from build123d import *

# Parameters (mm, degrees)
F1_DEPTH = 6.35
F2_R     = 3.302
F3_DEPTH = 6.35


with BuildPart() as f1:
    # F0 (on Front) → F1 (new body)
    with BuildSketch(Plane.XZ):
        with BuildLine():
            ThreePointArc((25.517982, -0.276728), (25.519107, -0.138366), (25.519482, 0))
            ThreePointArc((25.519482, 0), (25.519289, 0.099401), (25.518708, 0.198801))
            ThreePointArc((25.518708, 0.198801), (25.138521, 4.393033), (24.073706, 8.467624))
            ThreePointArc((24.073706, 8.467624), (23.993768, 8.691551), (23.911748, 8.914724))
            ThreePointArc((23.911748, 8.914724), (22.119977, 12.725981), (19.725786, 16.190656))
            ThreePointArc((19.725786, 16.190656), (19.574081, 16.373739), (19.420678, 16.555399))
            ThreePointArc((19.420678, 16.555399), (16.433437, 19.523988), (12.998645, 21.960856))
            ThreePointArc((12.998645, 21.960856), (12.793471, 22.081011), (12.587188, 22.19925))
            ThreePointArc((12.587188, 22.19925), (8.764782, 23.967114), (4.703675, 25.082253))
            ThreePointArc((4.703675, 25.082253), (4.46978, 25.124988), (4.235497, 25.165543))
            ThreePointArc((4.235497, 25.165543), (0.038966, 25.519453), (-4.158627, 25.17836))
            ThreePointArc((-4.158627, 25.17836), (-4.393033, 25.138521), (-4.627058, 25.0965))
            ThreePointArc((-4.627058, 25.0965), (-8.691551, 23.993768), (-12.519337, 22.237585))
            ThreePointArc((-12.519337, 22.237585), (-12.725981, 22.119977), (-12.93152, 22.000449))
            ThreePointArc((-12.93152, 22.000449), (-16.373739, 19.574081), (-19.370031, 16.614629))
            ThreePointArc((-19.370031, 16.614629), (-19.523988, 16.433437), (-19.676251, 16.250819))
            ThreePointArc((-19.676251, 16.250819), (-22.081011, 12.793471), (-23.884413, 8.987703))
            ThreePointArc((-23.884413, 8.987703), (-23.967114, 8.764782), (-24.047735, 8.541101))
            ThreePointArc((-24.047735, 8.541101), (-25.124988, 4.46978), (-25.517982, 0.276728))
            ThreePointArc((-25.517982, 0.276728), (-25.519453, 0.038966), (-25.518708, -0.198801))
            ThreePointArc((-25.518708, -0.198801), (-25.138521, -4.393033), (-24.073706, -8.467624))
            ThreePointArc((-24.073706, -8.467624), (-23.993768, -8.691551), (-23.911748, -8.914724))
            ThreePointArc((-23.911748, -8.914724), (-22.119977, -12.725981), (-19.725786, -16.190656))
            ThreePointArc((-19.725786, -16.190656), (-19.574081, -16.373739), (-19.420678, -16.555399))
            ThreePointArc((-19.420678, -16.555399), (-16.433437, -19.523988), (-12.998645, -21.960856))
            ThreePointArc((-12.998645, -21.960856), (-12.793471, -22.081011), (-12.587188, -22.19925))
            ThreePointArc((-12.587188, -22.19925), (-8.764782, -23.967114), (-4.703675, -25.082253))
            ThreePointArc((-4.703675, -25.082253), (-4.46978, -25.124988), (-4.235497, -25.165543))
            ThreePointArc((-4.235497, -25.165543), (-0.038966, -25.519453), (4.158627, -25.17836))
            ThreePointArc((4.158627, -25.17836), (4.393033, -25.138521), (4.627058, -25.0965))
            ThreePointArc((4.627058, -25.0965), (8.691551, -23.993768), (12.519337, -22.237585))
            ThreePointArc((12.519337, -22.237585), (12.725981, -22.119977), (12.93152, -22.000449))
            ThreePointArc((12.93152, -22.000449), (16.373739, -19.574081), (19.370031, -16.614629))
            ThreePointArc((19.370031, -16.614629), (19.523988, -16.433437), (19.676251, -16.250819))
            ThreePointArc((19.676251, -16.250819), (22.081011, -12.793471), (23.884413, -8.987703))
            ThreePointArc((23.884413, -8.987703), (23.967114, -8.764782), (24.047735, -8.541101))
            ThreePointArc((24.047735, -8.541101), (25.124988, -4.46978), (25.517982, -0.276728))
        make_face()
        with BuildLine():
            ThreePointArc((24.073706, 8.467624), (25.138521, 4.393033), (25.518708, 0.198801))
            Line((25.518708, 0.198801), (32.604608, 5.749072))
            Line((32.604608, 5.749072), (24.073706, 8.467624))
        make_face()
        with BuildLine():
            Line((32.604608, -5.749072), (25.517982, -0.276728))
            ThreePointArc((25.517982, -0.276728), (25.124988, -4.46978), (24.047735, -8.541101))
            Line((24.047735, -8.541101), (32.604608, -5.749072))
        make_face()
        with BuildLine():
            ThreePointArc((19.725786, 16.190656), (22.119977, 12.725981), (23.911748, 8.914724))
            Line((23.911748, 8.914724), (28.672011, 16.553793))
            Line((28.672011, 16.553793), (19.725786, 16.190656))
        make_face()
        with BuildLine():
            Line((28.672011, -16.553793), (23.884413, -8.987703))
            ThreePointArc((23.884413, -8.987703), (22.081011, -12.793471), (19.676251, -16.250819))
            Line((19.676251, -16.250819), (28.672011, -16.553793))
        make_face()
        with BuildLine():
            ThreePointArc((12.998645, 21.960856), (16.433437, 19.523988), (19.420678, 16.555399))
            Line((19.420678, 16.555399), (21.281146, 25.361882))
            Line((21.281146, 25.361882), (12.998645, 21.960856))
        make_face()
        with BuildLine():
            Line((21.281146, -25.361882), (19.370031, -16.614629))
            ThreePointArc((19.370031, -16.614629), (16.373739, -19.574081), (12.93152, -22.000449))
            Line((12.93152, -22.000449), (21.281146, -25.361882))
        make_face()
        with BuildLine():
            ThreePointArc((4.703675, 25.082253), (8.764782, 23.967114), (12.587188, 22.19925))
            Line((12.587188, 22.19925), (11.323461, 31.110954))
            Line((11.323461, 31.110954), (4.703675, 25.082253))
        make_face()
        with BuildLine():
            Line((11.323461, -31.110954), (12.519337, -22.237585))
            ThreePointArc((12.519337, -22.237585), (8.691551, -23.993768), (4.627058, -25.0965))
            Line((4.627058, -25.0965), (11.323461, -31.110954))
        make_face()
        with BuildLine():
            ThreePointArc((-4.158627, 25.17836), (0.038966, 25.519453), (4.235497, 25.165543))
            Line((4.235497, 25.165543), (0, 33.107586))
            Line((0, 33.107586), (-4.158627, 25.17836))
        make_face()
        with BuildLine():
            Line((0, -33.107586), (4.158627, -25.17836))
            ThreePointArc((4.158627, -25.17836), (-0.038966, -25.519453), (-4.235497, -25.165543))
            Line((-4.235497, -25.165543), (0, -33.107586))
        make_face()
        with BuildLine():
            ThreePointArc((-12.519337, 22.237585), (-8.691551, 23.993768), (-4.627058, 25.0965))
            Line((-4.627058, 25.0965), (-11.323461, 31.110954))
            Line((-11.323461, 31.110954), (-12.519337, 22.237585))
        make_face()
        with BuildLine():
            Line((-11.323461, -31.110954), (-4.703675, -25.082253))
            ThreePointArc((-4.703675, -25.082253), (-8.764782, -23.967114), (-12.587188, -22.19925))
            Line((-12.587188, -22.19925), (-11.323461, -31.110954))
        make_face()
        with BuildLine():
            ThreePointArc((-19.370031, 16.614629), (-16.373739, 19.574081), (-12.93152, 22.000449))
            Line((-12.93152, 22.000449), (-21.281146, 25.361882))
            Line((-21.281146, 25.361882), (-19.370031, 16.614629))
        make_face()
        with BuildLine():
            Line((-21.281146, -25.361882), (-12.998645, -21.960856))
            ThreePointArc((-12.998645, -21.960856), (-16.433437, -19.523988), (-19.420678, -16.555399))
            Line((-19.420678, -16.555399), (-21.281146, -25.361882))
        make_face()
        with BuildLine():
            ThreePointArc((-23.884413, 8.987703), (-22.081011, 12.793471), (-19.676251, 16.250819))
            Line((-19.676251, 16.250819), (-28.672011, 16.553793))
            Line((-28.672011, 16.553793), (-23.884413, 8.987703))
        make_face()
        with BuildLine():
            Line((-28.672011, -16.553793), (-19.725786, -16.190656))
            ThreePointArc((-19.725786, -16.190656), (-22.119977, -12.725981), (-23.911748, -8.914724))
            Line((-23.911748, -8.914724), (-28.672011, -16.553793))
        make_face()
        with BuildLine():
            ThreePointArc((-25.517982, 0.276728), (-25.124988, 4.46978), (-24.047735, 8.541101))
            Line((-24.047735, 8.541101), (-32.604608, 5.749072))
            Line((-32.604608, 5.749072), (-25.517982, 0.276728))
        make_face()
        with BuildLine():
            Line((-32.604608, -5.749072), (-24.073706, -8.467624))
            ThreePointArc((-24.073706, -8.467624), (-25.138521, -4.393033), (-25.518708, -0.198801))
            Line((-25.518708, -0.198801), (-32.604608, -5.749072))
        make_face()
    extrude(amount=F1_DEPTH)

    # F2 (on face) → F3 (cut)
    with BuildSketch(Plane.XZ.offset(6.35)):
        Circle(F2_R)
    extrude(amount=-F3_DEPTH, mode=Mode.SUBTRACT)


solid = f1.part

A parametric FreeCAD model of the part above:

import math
import FreeCAD as App
import Part
import Sketcher

V = App.Vector
Q = App.Units.Quantity

doc = App.newDocument("Part")
params = doc.addObject("Spreadsheet::Sheet", "Params")
for row, (alias, value) in enumerate([
    ("pad1_length", "0.25 in"),
    ("sketch2_diameter", "0.26 in"),
    ("pocket1_length", "0.25 in"),
], start=1):
    params.set(f"A{row}", alias)
    params.set(f"B{row}", "=" + value)
    params.setAlias(f"B{row}", alias)

body = doc.addObject("PartDesign::Body", "Body")

sketch1 = body.newObject("Sketcher::SketchObject", "Sketch")
sketch1.AttachmentSupport = (doc.getObject("XZ_Plane"), [""])
sketch1.MapMode = "FlatFace"
sketch1.addGeometry([
    Part.ArcOfCircle(Part.Circle(V(-0.007221, -0.000001, 0), V(0, 0, 1), 25.526703), math.radians(-0.621138), math.radians(0.000002)),
    Part.ArcOfCircle(Part.Circle(V(0.05396, 0.000256, 0), V(0, 0, 1), 25.465522), math.radians(-0.000576), math.radians(0.446718)),
    Part.LineSegment(V(25.518708, 0.198801, 0), V(32.604608, 5.749072, 0)),
    Part.LineSegment(V(32.604608, 5.749072, 0), V(24.073706, 8.467624, 0)),
    Part.ArcOfCircle(Part.Circle(V(-0.01061, -0.003822, 0), V(0, 0, 1), 25.53076), math.radians(19.378872), math.radians(20.446066)),
    Part.LineSegment(V(23.911748, 8.914724, 0), V(28.672011, 16.553793, 0)),
    Part.LineSegment(V(28.672011, 16.553793, 0), V(19.725786, 16.190656, 0)),
    Part.ArcOfCircle(Part.Circle(V(0.001148, 0.000953, 0), V(0, 0, 1), 25.51799), math.radians(39.378663), math.radians(40.446389)),
    Part.LineSegment(V(19.420678, 16.555399, 0), V(21.281146, 25.361882, 0)),
    Part.LineSegment(V(21.281146, 25.361882, 0), V(12.998645, 21.960856, 0)),
    Part.ArcOfCircle(Part.Circle(V(-0.008679, -0.014908, 0), V(0, 0, 1), 25.536732), math.radians(59.378962), math.radians(60.445905)),
    Part.LineSegment(V(12.587188, 22.19925, 0), V(11.323461, 31.110954, 0)),
    Part.LineSegment(V(11.323461, 31.110954, 0), V(4.703675, 25.082253, 0)),
    Part.ArcOfCircle(Part.Circle(V(-0.002108, -0.011755, 0), V(0, 0, 1), 25.531424), math.radians(79.378898), math.radians(80.446061)),
    Part.LineSegment(V(4.235497, 25.165543, 0), V(0, 33.107586, 0)),
    Part.LineSegment(V(0, 33.107586, 0), V(-4.158627, 25.17836, 0)),
    Part.ArcOfCircle(Part.Circle(V(0.000588, -0.003286, 0), V(0, 0, 1), 25.52282), math.radians(99.378784), math.radians(100.446309)),
    Part.LineSegment(V(-4.627058, 25.0965, 0), V(-11.323461, 31.110954, 0)),
    Part.LineSegment(V(-11.323461, 31.110954, 0), V(-12.519337, 22.237585, 0)),
    Part.ArcOfCircle(Part.Circle(V(0.000184, -0.000279, 0), V(0, 0, 1), 25.519816), math.radians(119.378737), math.radians(120.446386)),
    Part.LineSegment(V(-12.93152, 22.000449, 0), V(-21.281146, 25.361882, 0)),
    Part.LineSegment(V(-21.281146, 25.361882, 0), V(-19.370031, 16.614629, 0)),
    Part.ArcOfCircle(Part.Circle(V(0.008866, -0.007427, 0), V(0, 0, 1), 25.531048), math.radians(139.378987), math.radians(140.446168)),
    Part.LineSegment(V(-19.676251, 16.250819, 0), V(-28.672011, 16.553793, 0)),
    Part.LineSegment(V(-28.672011, 16.553793, 0), V(-23.884413, 8.987703, 0)),
    Part.ArcOfCircle(Part.Circle(V(0.008597, -0.003116, 0), V(0, 0, 1), 25.528626), math.radians(159.378934), math.radians(160.446213)),
    Part.LineSegment(V(-24.047735, 8.541101, 0), V(-32.604608, 5.749072, 0)),
    Part.LineSegment(V(-32.604608, 5.749072, 0), V(-25.517982, 0.276728, 0)),
    Part.ArcOfCircle(Part.Circle(V(-0.008116, 0.000017, 0), V(0, 0, 1), 25.511366), math.radians(179.378524), math.radians(180.446527)),
    Part.LineSegment(V(-25.518708, -0.198801, 0), V(-32.604608, -5.749072, 0)),
    Part.LineSegment(V(-32.604608, -5.749072, 0), V(-24.073706, -8.467624, 0)),
    Part.ArcOfCircle(Part.Circle(V(0.01061, 0.003822, 0), V(0, 0, 1), 25.53076), math.radians(-160.621128), math.radians(-159.553934)),
    Part.LineSegment(V(-23.911748, -8.914724, 0), V(-28.672011, -16.553793, 0)),
    Part.LineSegment(V(-28.672011, -16.553793, 0), V(-19.725786, -16.190656, 0)),
    Part.ArcOfCircle(Part.Circle(V(-0.001148, -0.000953, 0), V(0, 0, 1), 25.51799), math.radians(-140.621337), math.radians(-139.553611)),
    Part.LineSegment(V(-19.420678, -16.555399, 0), V(-21.281146, -25.361882, 0)),
    Part.LineSegment(V(-21.281146, -25.361882, 0), V(-12.998645, -21.960856, 0)),
    Part.ArcOfCircle(Part.Circle(V(0.008679, 0.014908, 0), V(0, 0, 1), 25.536732), math.radians(-120.621038), math.radians(-119.554095)),
    Part.LineSegment(V(-12.587188, -22.19925, 0), V(-11.323461, -31.110954, 0)),
    Part.LineSegment(V(-11.323461, -31.110954, 0), V(-4.703675, -25.082253, 0)),
    Part.ArcOfCircle(Part.Circle(V(0.002108, 0.011755, 0), V(0, 0, 1), 25.531424), math.radians(-100.621102), math.radians(-99.553939)),
    Part.LineSegment(V(-4.235497, -25.165543, 0), V(0, -33.107586, 0)),
    Part.LineSegment(V(0, -33.107586, 0), V(4.158627, -25.17836, 0)),
    Part.ArcOfCircle(Part.Circle(V(-0.000588, 0.003286, 0), V(0, 0, 1), 25.52282), math.radians(-80.621216), math.radians(-79.553691)),
    Part.LineSegment(V(4.627058, -25.0965, 0), V(11.323461, -31.110954, 0)),
    Part.LineSegment(V(11.323461, -31.110954, 0), V(12.519337, -22.237585, 0)),
    Part.ArcOfCircle(Part.Circle(V(-0.000184, 0.000279, 0), V(0, 0, 1), 25.519816), math.radians(-60.621263), math.radians(-59.553614)),
    Part.LineSegment(V(12.93152, -22.000449, 0), V(21.281146, -25.361882, 0)),
    Part.LineSegment(V(21.281146, -25.361882, 0), V(19.370031, -16.614629, 0)),
    Part.ArcOfCircle(Part.Circle(V(-0.008866, 0.007427, 0), V(0, 0, 1), 25.531048), math.radians(-40.621013), math.radians(-39.553832)),
    Part.LineSegment(V(19.676251, -16.250819, 0), V(28.672011, -16.553793, 0)),
    Part.LineSegment(V(28.672011, -16.553793, 0), V(23.884413, -8.987703, 0)),
    Part.ArcOfCircle(Part.Circle(V(-0.008597, 0.003116, 0), V(0, 0, 1), 25.528626), math.radians(-20.621066), math.radians(-19.553787)),
    Part.LineSegment(V(24.047735, -8.541101, 0), V(32.604608, -5.749072, 0)),
    Part.LineSegment(V(32.604608, -5.749072, 0), V(25.517982, -0.276728, 0)),
], False)
sketch1.addConstraint([
    Sketcher.Constraint("Coincident", 0, 2, 1, 1),
    Sketcher.Constraint("Coincident", 1, 2, 2, 1),
    Sketcher.Constraint("Coincident", 2, 2, 3, 1),
    Sketcher.Constraint("Coincident", 3, 2, 4, 1),
    Sketcher.Constraint("Coincident", 4, 2, 5, 1),
    Sketcher.Constraint("Coincident", 5, 2, 6, 1),
    Sketcher.Constraint("Coincident", 6, 2, 7, 1),
    Sketcher.Constraint("Coincident", 7, 2, 8, 1),
    Sketcher.Constraint("Coincident", 8, 2, 9, 1),
    Sketcher.Constraint("Coincident", 9, 2, 10, 1),
    Sketcher.Constraint("Coincident", 10, 2, 11, 1),
    Sketcher.Constraint("Coincident", 11, 2, 12, 1),
    Sketcher.Constraint("Coincident", 12, 2, 13, 1),
    Sketcher.Constraint("Coincident", 13, 2, 14, 1),
    Sketcher.Constraint("Coincident", 14, 2, 15, 1),
    Sketcher.Constraint("Coincident", 15, 2, 16, 1),
    Sketcher.Constraint("Coincident", 16, 2, 17, 1),
    Sketcher.Constraint("Coincident", 17, 2, 18, 1),
    Sketcher.Constraint("Coincident", 18, 2, 19, 1),
    Sketcher.Constraint("Coincident", 19, 2, 20, 1),
    Sketcher.Constraint("Coincident", 20, 2, 21, 1),
    Sketcher.Constraint("Coincident", 21, 2, 22, 1),
    Sketcher.Constraint("Coincident", 22, 2, 23, 1),
    Sketcher.Constraint("Coincident", 23, 2, 24, 1),
    Sketcher.Constraint("Coincident", 24, 2, 25, 1),
    Sketcher.Constraint("Coincident", 25, 2, 26, 1),
    Sketcher.Constraint("Coincident", 26, 2, 27, 1),
    Sketcher.Constraint("Coincident", 27, 2, 28, 1),
    Sketcher.Constraint("Coincident", 28, 2, 29, 1),
    Sketcher.Constraint("Coincident", 29, 2, 30, 1),
    Sketcher.Constraint("Coincident", 30, 2, 31, 1),
    Sketcher.Constraint("Coincident", 31, 2, 32, 1),
    Sketcher.Constraint("Coincident", 32, 2, 33, 1),
    Sketcher.Constraint("Coincident", 33, 2, 34, 1),
    Sketcher.Constraint("Coincident", 34, 2, 35, 1),
    Sketcher.Constraint("Coincident", 35, 2, 36, 1),
    Sketcher.Constraint("Coincident", 36, 2, 37, 1),
    Sketcher.Constraint("Coincident", 37, 2, 38, 1),
    Sketcher.Constraint("Coincident", 38, 2, 39, 1),
    Sketcher.Constraint("Coincident", 39, 2, 40, 1),
    Sketcher.Constraint("Coincident", 40, 2, 41, 1),
    Sketcher.Constraint("Coincident", 41, 2, 42, 1),
    Sketcher.Constraint("Coincident", 42, 2, 43, 1),
    Sketcher.Constraint("Coincident", 43, 2, 44, 1),
    Sketcher.Constraint("Coincident", 44, 2, 45, 1),
    Sketcher.Constraint("Coincident", 45, 2, 46, 1),
    Sketcher.Constraint("Coincident", 46, 2, 47, 1),
    Sketcher.Constraint("Coincident", 47, 2, 48, 1),
    Sketcher.Constraint("Coincident", 48, 2, 49, 1),
    Sketcher.Constraint("Coincident", 49, 2, 50, 1),
    Sketcher.Constraint("Coincident", 50, 2, 51, 1),
    Sketcher.Constraint("Coincident", 51, 2, 52, 1),
    Sketcher.Constraint("Coincident", 52, 2, 53, 1),
    Sketcher.Constraint("Coincident", 53, 2, 54, 1),
    Sketcher.Constraint("Coincident", 54, 2, 0, 1),
    Sketcher.Constraint("Equal", 4, 31),
    Sketcher.Constraint("Equal", 7, 34),
    Sketcher.Constraint("Equal", 10, 37),
    Sketcher.Constraint("Equal", 13, 40),
    Sketcher.Constraint("Equal", 16, 43),
    Sketcher.Constraint("Equal", 19, 46),
    Sketcher.Constraint("Equal", 22, 49),
    Sketcher.Constraint("Equal", 25, 52),
    Sketcher.Constraint("Symmetric", 4, 3, 31, 3, -1, 1),
    Sketcher.Constraint("Symmetric", 7, 3, 34, 3, -1, 1),
    Sketcher.Constraint("Symmetric", 10, 3, 37, 3, -1, 1),
    Sketcher.Constraint("Symmetric", 13, 3, 40, 3, -1, 1),
    Sketcher.Constraint("Symmetric", 16, 3, 43, 3, -1, 1),
    Sketcher.Constraint("Symmetric", 19, 3, 46, 3, -1, 1),
    Sketcher.Constraint("Symmetric", 22, 3, 49, 3, -1, 1),
    Sketcher.Constraint("Symmetric", 25, 3, 52, 3, -1, 1),
    Sketcher.Constraint("Symmetric", 1, 2, 28, 2, -1, 1),
    Sketcher.Constraint("Symmetric", 2, 2, 29, 2, -1, 1),
    Sketcher.Constraint("Symmetric", 5, 2, 32, 2, -1, 1),
    Sketcher.Constraint("Symmetric", 8, 2, 35, 2, -1, 1),
    Sketcher.Constraint("Symmetric", 11, 2, 38, 2, -1, 1),
    Sketcher.Constraint("Symmetric", 14, 2, 41, 2, -1, 1),
    Sketcher.Constraint("Symmetric", 17, 2, 44, 2, -1, 1),
    Sketcher.Constraint("Symmetric", 20, 2, 47, 2, -1, 1),
    Sketcher.Constraint("Symmetric", 23, 2, 50, 2, -1, 1),
    Sketcher.Constraint("Symmetric", 26, 2, 53, 2, -1, 1),
    Sketcher.Constraint("Symmetric", 27, 2, 54, 2, -1, 1),
    Sketcher.Constraint("Symmetric", 11, 2, 17, 2, -2),
    Sketcher.Constraint("Symmetric", 8, 2, 20, 2, -2),
    Sketcher.Constraint("Symmetric", 5, 2, 23, 2, -2),
    Sketcher.Constraint("Symmetric", 2, 2, 26, 2, -2),
    Sketcher.Constraint("PointOnObject", 0, 3, -1),
    Sketcher.Constraint("PointOnObject", 0, 2, -1),
    Sketcher.Constraint("PointOnObject", 14, 2, -2),
    Sketcher.Constraint("Parallel", 3, 30),
    Sketcher.Constraint("Parallel", 5, 32),
    Sketcher.Constraint("Parallel", 6, 33),
    Sketcher.Constraint("Parallel", 8, 35),
    Sketcher.Constraint("Parallel", 9, 36),
    Sketcher.Constraint("Parallel", 11, 38),
    Sketcher.Constraint("Parallel", 12, 39),
    Sketcher.Constraint("Parallel", 14, 41),
    Sketcher.Constraint("Parallel", 15, 42),
    Sketcher.Constraint("Parallel", 17, 44),
    Sketcher.Constraint("Parallel", 18, 45),
    Sketcher.Constraint("Parallel", 20, 47),
    Sketcher.Constraint("Parallel", 21, 48),
    Sketcher.Constraint("Parallel", 23, 50),
    Sketcher.Constraint("Parallel", 24, 51),
    Sketcher.Constraint("Parallel", 26, 53),
    Sketcher.Constraint("Equal", 2, 5),
    Sketcher.Constraint("Equal", 3, 6),
    Sketcher.Constraint("Equal", 5, 8),
    Sketcher.Constraint("Equal", 6, 9),
    Sketcher.Constraint("Equal", 8, 11),
    Sketcher.Constraint("Equal", 9, 12),
    Sketcher.Constraint("Equal", 11, 14),
    Sketcher.Constraint("Equal", 12, 15),
    Sketcher.Constraint("Equal", 14, 17),
    Sketcher.Constraint("Equal", 15, 18),
    Sketcher.Constraint("Equal", 17, 20),
    Sketcher.Constraint("Equal", 18, 21),
    Sketcher.Constraint("Equal", 20, 23),
    Sketcher.Constraint("Equal", 21, 24),
    Sketcher.Constraint("Equal", 23, 26),
    Sketcher.Constraint("Equal", 24, 27),
    Sketcher.Constraint("Radius", 4, 25.53076),
    Sketcher.Constraint("Radius", 7, 25.51799),
    Sketcher.Constraint("Radius", 16, 25.52282),
    Sketcher.Constraint("Radius", 0, 25.526703),
    Sketcher.Constraint("Radius", 1, 25.465522),
    Sketcher.Constraint("Radius", 10, 25.536732),
    Sketcher.Constraint("Radius", 13, 25.531424),
    Sketcher.Constraint("Radius", 19, 25.519816),
    Sketcher.Constraint("Radius", 22, 25.531048),
    Sketcher.Constraint("Radius", 25, 25.528626),
    Sketcher.Constraint("Radius", 28, 25.511366),
    Sketcher.Constraint("DistanceY", -1, 1, 1, 2, 0.198801),
    Sketcher.Constraint("DistanceY", -1, 1, 7, 2, 16.555399),
    Sketcher.Constraint("DistanceY", -1, 1, 16, 2, 25.0965),
    Sketcher.Constraint("DistanceY", -1, 1, 25, 2, 8.541101),
    Sketcher.Constraint("Distance", 2, 9.00086),
    Sketcher.Constraint("Distance", 9, 8.953591),
    Sketcher.Constraint("DistanceX", 0, 3, -1, 1, 0.007221),
    Sketcher.Constraint("DistanceX", 4, 3, -1, 1, 0.01061),
    Sketcher.Constraint("DistanceY", 4, 3, -1, 1, 0.003822),
    Sketcher.Constraint("DistanceX", -1, 1, 7, 3, 0.001148),
    Sketcher.Constraint("DistanceX", 10, 3, -1, 1, 0.008679),
    Sketcher.Constraint("DistanceY", 10, 3, -1, 1, 0.014908),
    Sketcher.Constraint("DistanceY", 19, 3, -1, 1, 0.000279),
    Sketcher.Constraint("DistanceX", -1, 1, 4, 2, 23.911748),
    Sketcher.Constraint("DistanceX", -1, 1, 5, 2, 28.672011),
    Sketcher.Constraint("DistanceX", -1, 1, 7, 2, 19.420678),
    Sketcher.Constraint("DistanceX", -1, 1, 10, 2, 12.587188),
    Sketcher.Constraint("DistanceX", -1, 1, 11, 2, 11.323461),
    Sketcher.Constraint("DistanceY", -1, 1, 15, 2, 25.17836),
    Sketcher.Constraint("DistanceX", 19, 2, -1, 1, 12.93152),
    Sketcher.Constraint("DistanceY", -1, 1, 19, 2, 22.000449),
    Sketcher.Constraint("DistanceX", 21, 2, -1, 1, 19.370031),
    Sketcher.Constraint("DistanceY", -1, 1, 1, 3, 0.000256),
    Sketcher.Constraint("DistanceX", 13, 3, -1, 1, 0.002108),
    Sketcher.Constraint("DistanceY", 13, 3, -1, 1, 0.011755),
    Sketcher.Constraint("DistanceX", -1, 1, 16, 3, 0.000588),
    Sketcher.Constraint("DistanceX", -1, 1, 22, 3, 0.008866),
    Sketcher.Constraint("DistanceX", -1, 1, 25, 3, 0.008597),
    Sketcher.Constraint("DistanceY", 25, 3, -1, 1, 0.003116),
])
pad1 = body.newObject("PartDesign::Pad", "Pad")
pad1.Profile = sketch1
pad1.setExpression("Length", "Params.pad1_length")

sketch2 = body.newObject("Sketcher::SketchObject", "Sketch001")
sketch2.AttachmentSupport = (doc.getObject("XZ_Plane"), [""])
sketch2.MapMode = "FlatFace"
sketch2.AttachmentOffset = App.Placement(V(0, 0, 0.25 * 25.4), App.Rotation())
sketch2.addGeometry(Part.Circle(V(0, 0, 0), V(0, 0, 1), 3.302), False)
sketch2.addConstraint([
    Sketcher.Constraint("Coincident", 0, 3, -1, 1),
    Sketcher.Constraint("Diameter", 0, Q("0.26 in")),
])
sketch2.setExpression("Constraints[1]", "Params.sketch2_diameter")
pocket1 = body.newObject("PartDesign::Pocket", "Pocket")
pocket1.Profile = sketch2
pocket1.setExpression("Length", "Params.pocket1_length")

doc.recompute()
